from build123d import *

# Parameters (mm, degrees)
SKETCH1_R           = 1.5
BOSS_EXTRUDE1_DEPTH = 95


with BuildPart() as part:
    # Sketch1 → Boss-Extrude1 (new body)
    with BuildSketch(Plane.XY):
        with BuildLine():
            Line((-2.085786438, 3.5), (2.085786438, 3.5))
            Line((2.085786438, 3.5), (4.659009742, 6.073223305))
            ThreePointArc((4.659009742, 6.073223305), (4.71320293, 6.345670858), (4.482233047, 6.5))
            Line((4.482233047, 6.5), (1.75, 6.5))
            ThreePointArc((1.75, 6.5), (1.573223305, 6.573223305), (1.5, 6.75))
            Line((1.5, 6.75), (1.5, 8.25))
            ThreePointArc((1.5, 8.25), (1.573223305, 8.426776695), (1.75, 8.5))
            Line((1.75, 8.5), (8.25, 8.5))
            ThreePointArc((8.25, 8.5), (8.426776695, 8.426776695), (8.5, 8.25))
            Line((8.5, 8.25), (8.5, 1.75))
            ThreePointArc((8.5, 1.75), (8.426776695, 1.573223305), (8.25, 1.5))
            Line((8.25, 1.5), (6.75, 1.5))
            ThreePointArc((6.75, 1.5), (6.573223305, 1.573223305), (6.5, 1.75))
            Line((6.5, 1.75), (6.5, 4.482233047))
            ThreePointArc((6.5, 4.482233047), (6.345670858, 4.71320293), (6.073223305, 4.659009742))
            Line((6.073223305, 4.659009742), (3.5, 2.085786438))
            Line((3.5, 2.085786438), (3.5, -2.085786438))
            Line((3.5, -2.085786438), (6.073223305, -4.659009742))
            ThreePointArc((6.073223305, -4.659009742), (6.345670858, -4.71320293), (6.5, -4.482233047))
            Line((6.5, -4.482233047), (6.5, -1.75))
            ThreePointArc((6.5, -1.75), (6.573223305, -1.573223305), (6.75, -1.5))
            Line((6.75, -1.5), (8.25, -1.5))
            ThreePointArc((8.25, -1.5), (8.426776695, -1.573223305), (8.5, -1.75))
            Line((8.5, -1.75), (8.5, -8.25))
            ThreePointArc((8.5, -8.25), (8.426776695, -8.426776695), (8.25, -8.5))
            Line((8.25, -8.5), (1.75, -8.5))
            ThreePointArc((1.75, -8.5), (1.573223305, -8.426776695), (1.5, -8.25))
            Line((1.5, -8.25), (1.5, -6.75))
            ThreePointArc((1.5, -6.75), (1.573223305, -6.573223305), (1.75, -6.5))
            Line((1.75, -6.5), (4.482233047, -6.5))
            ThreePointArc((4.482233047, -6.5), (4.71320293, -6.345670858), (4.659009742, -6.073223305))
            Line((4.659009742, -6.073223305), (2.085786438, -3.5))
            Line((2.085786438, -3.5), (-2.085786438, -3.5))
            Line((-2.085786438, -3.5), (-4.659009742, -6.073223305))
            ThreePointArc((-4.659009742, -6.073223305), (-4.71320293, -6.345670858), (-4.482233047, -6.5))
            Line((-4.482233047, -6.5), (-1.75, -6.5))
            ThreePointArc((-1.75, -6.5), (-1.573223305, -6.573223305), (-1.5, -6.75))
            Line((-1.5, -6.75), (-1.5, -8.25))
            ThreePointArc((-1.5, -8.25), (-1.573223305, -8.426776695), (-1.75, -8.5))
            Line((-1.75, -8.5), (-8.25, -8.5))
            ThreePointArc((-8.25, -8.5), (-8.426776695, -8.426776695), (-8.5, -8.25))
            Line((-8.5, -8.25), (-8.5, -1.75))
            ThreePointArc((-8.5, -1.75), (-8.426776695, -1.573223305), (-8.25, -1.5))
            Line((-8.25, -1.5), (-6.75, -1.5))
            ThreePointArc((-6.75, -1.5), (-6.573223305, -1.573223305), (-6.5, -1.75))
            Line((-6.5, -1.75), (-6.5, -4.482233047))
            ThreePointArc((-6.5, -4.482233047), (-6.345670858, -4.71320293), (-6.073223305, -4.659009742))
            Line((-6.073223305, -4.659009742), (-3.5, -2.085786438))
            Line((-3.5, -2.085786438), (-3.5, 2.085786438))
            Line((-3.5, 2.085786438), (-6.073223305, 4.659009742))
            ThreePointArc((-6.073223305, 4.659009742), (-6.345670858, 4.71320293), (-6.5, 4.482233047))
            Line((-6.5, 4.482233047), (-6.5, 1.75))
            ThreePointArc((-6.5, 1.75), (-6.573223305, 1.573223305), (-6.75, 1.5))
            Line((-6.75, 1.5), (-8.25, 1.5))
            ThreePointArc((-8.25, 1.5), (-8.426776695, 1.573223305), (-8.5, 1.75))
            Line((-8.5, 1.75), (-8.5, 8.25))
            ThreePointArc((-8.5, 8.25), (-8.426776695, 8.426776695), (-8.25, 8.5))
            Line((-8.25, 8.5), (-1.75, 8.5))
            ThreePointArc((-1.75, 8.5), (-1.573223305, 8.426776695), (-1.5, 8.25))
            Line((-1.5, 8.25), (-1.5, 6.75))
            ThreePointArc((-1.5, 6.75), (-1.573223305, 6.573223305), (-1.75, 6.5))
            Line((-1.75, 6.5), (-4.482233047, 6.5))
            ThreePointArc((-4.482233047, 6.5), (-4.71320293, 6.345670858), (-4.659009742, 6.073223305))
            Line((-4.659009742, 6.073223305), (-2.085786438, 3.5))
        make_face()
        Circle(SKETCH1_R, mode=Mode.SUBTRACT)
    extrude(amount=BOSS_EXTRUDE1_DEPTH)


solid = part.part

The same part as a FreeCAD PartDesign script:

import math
import FreeCAD as App
import Part
import Sketcher

V = App.Vector

doc = App.newDocument("Part")
params = doc.addObject("Spreadsheet::Sheet", "Params")
for row, (alias, value) in enumerate([
    ("sketch1_diameter", "3 mm"),
    ("sketch1_radius", "0.25 mm"),
    ("sketch1_width", "6.5 mm"),
    ("sketch1_width2", "1.5 mm"),
    ("pad1_length", "95 mm"),
], start=1):
    params.set(f"A{row}", alias)
    params.set(f"B{row}", "=" + value)
    params.setAlias(f"B{row}", alias)

body = doc.addObject("PartDesign::Body", "Body")

# Sketch on XY plane
sketch1 = doc.addObject("Sketcher::SketchObject", "Sketch")
body.addObject(sketch1)
sketch1.AttachmentSupport = (doc.XY_Plane, [""])
sketch1.MapMode = "FlatFace"
sketch1.addGeometry([
    Part.LineSegment(V(2.09, 3.5, 0), V(-2.09, 3.5, 0)),  # 0
    Part.LineSegment(V(-2.09, 3.5, 0), V(-4.66, 6.07, 0)),  # 1
    Part.ArcOfCircle(Part.Circle(V(-4.48, 6.25, 0), V(0, 0, 1), 0.25), math.radians(90), math.radians(225)),  # 2
    Part.LineSegment(V(-4.48, 6.5, 0), V(-1.75, 6.5, 0)),  # 3
    Part.ArcOfCircle(Part.Circle(V(-1.75, 6.75, 0), V(0, 0, 1), 0.25), math.radians(-90), math.radians(0)),  # 4
    Part.LineSegment(V(-1.5, 6.75, 0), V(-1.5, 8.25, 0)),  # 5
    Part.ArcOfCircle(Part.Circle(V(-1.75, 8.25, 0), V(0, 0, 1), 0.25), math.radians(0), math.radians(90)),  # 6
    Part.LineSegment(V(-1.75, 8.5, 0), V(-8.25, 8.5, 0)),  # 7
    Part.ArcOfCircle(Part.Circle(V(-8.25, 8.25, 0), V(0, 0, 1), 0.25), math.radians(90), math.radians(180)),  # 8
    Part.LineSegment(V(-8.5, 8.25, 0), V(-8.5, 1.75, 0)),  # 9
    Part.ArcOfCircle(Part.Circle(V(-8.25, 1.75, 0), V(0, 0, 1), 0.25), math.radians(-180), math.radians(-90)),  # 10
    Part.LineSegment(V(-8.25, 1.5, 0), V(-6.75, 1.5, 0)),  # 11
    Part.ArcOfCircle(Part.Circle(V(-6.75, 1.75, 0), V(0, 0, 1), 0.25), math.radians(-90), math.radians(0)),  # 12
    Part.LineSegment(V(-6.5, 1.75, 0), V(-6.5, 4.48, 0)),  # 13
    Part.ArcOfCircle(Part.Circle(V(-6.25, 4.48, 0), V(0, 0, 1), 0.25), math.radians(45), math.radians(180)),  # 14
    Part.LineSegment(V(-6.07, 4.66, 0), V(-3.5, 2.09, 0)),  # 15
    Part.LineSegment(V(-3.5, 2.09, 0), V(-3.5, -2.09, 0)),  # 16
    Part.LineSegment(V(-3.5, -2.09, 0), V(-6.07, -4.66, 0)),  # 17
    Part.ArcOfCircle(Part.Circle(V(-6.25, -4.48, 0), V(0, 0, 1), 0.25), math.radians(180), math.radians(315)),  # 18
    Part.LineSegment(V(-6.5, -4.48, 0), V(-6.5, -1.75, 0)),  # 19
    Part.ArcOfCircle(Part.Circle(V(-6.75, -1.75, 0), V(0, 0, 1), 0.25), math.radians(0), math.radians(90)),  # 20
    Part.LineSegment(V(-6.75, -1.5, 0), V(-8.25, -1.5, 0)),  # 21
    Part.ArcOfCircle(Part.Circle(V(-8.25, -1.75, 0), V(0, 0, 1), 0.25), math.radians(90), math.radians(180)),  # 22
    Part.LineSegment(V(-8.5, -1.75, 0), V(-8.5, -8.25, 0)),  # 23
    Part.ArcOfCircle(Part.Circle(V(-8.25, -8.25, 0), V(0, 0, 1), 0.25), math.radians(-180), math.radians(-90)),  # 24
    Part.LineSegment(V(-8.25, -8.5, 0), V(-1.75, -8.5, 0)),  # 25
    Part.ArcOfCircle(Part.Circle(V(-1.75, -8.25, 0), V(0, 0, 1), 0.25), math.radians(-90), math.radians(0)),  # 26
    Part.LineSegment(V(-1.5, -8.25, 0), V(-1.5, -6.75, 0)),  # 27
    Part.ArcOfCircle(Part.Circle(V(-1.75, -6.75, 0), V(0, 0, 1), 0.25), math.radians(0), math.radians(90)),  # 28
    Part.LineSegment(V(-1.75, -6.5, 0), V(-4.48, -6.5, 0)),  # 29
    Part.ArcOfCircle(Part.Circle(V(-4.48, -6.25, 0), V(0, 0, 1), 0.25), math.radians(135), math.radians(270)),  # 30
    Part.LineSegment(V(-4.66, -6.07, 0), V(-2.09, -3.5, 0)),  # 31
    Part.LineSegment(V(-2.09, -3.5, 0), V(2.09, -3.5, 0)),  # 32
    Part.LineSegment(V(2.09, -3.5, 0), V(4.66, -6.07, 0)),  # 33
    Part.ArcOfCircle(Part.Circle(V(4.48, -6.25, 0), V(0, 0, 1), 0.25), math.radians(-90), math.radians(45)),  # 34
    Part.LineSegment(V(4.48, -6.5, 0), V(1.75, -6.5, 0)),  # 35
    Part.ArcOfCircle(Part.Circle(V(1.75, -6.75, 0), V(0, 0, 1), 0.25), math.radians(90), math.radians(180)),  # 36
    Part.LineSegment(V(1.5, -6.75, 0), V(1.5, -8.25, 0)),  # 37
    Part.ArcOfCircle(Part.Circle(V(1.75, -8.25, 0), V(0, 0, 1), 0.25), math.radians(-180), math.radians(-90)),  # 38
    Part.LineSegment(V(1.75, -8.5, 0), V(8.25, -8.5, 0)),  # 39
    Part.ArcOfCircle(Part.Circle(V(8.25, -8.25, 0), V(0, 0, 1), 0.25), math.radians(-90), math.radians(0)),  # 40
    Part.LineSegment(V(8.5, -8.25, 0), V(8.5, -1.75, 0)),  # 41
    Part.ArcOfCircle(Part.Circle(V(8.25, -1.75, 0), V(0, 0, 1), 0.25), math.radians(0), math.radians(90)),  # 42
    Part.LineSegment(V(8.25, -1.5, 0), V(6.75, -1.5, 0)),  # 43
    Part.ArcOfCircle(Part.Circle(V(6.75, -1.75, 0), V(0, 0, 1), 0.25), math.radians(90), math.radians(180)),  # 44
    Part.LineSegment(V(6.5, -1.75, 0), V(6.5, -4.48, 0)),  # 45
    Part.ArcOfCircle(Part.Circle(V(6.25, -4.48, 0), V(0, 0, 1), 0.25), math.radians(-135), math.radians(0)),  # 46
    Part.LineSegment(V(6.07, -4.66, 0), V(3.5, -2.09, 0)),  # 47
    Part.LineSegment(V(3.5, -2.09, 0), V(3.5, 2.09, 0)),  # 48
    Part.LineSegment(V(3.5, 2.09, 0), V(6.07, 4.66, 0)),  # 49
    Part.ArcOfCircle(Part.Circle(V(6.25, 4.48, 0), V(0, 0, 1), 0.25), math.radians(0), math.radians(135)),  # 50
    Part.LineSegment(V(6.5, 4.48, 0), V(6.5, 1.75, 0)),  # 51
    Part.ArcOfCircle(Part.Circle(V(6.75, 1.75, 0), V(0, 0, 1), 0.25), math.radians(-180), math.radians(-90)),  # 52
    Part.LineSegment(V(6.75, 1.5, 0), V(8.25, 1.5, 0)),  # 53
    Part.ArcOfCircle(Part.Circle(V(8.25, 1.75, 0), V(0, 0, 1), 0.25), math.radians(-90), math.radians(0)),  # 54
    Part.LineSegment(V(8.5, 1.75, 0), V(8.5, 8.25, 0)),  # 55
    Part.ArcOfCircle(Part.Circle(V(8.25, 8.25, 0), V(0, 0, 1), 0.25), math.radians(0), math.radians(90)),  # 56
    Part.LineSegment(V(8.25, 8.5, 0), V(1.75, 8.5, 0)),  # 57
    Part.ArcOfCircle(Part.Circle(V(1.75, 8.25, 0), V(0, 0, 1), 0.25), math.radians(90), math.radians(180)),  # 58
    Part.LineSegment(V(1.5, 8.25, 0), V(1.5, 6.75, 0)),  # 59
    Part.ArcOfCircle(Part.Circle(V(1.75, 6.75, 0), V(0, 0, 1), 0.25), math.radians(-180), math.radians(-90)),  # 60
    Part.LineSegment(V(1.75, 6.5, 0), V(4.48, 6.5, 0)),  # 61
    Part.ArcOfCircle(Part.Circle(V(4.48, 6.25, 0), V(0, 0, 1), 0.25), math.radians(-45), math.radians(90)),  # 62
    Part.LineSegment(V(4.66, 6.07, 0), V(2.09, 3.5, 0)),  # 63
    Part.Circle(V(0, 0, 0), V(0, 0, 1), 1.5),  # 64
], False)
sketch1.addConstraint([
    Sketcher.Constraint("Coincident", 0, 2, 1, 1),
    Sketcher.Constraint("Tangent", 1, 2, 2, 2),
    Sketcher.Constraint("Tangent", 2, 1, 3, 1),
    Sketcher.Constraint("Tangent", 3, 2, 4, 1),
    Sketcher.Constraint("Tangent", 4, 2, 5, 1),
    Sketcher.Constraint("Tangent", 5, 2, 6, 1),
    Sketcher.Constraint("Tangent", 6, 2, 7, 1),
    Sketcher.Constraint("Tangent", 7, 2, 8, 1),
    Sketcher.Constraint("Tangent", 8, 2, 9, 1),
    Sketcher.Constraint("Tangent", 9, 2, 10, 1),
    Sketcher.Constraint("Tangent", 10, 2, 11, 1),
    Sketcher.Constraint("Tangent", 11, 2, 12, 1),
    Sketcher.Constraint("Tangent", 12, 2, 13, 1),
    Sketcher.Constraint("Tangent", 13, 2, 14, 2),
    Sketcher.Constraint("Tangent", 14, 1, 15, 1),
    Sketcher.Constraint("Coincident", 15, 2, 16, 1),
    Sketcher.Constraint("Coincident", 16, 2, 17, 1),
    Sketcher.Constraint("Tangent", 17, 2, 18, 2),
    Sketcher.Constraint("Tangent", 18, 1, 19, 1),
    Sketcher.Constraint("Tangent", 19, 2, 20, 1),
    Sketcher.Constraint("Tangent", 20, 2, 21, 1),
    Sketcher.Constraint("Tangent", 21, 2, 22, 1),
    Sketcher.Constraint("Tangent", 22, 2, 23, 1),
    Sketcher.Constraint("Tangent", 23, 2, 24, 1),
    Sketcher.Constraint("Tangent", 24, 2, 25, 1),
    Sketcher.Constraint("Tangent", 25, 2, 26, 1),
    Sketcher.Constraint("Tangent", 26, 2, 27, 1),
    Sketcher.Constraint("Tangent", 27, 2, 28, 1),
    Sketcher.Constraint("Tangent", 28, 2, 29, 1),
    Sketcher.Constraint("Tangent", 29, 2, 30, 2),
    Sketcher.Constraint("Tangent", 30, 1, 31, 1),
    Sketcher.Constraint("Coincident", 31, 2, 32, 1),
    Sketcher.Constraint("Coincident", 32, 2, 33, 1),
    Sketcher.Constraint("Tangent", 33, 2, 34, 2),
    Sketcher.Constraint("Tangent", 34, 1, 35, 1),
    Sketcher.Constraint("Tangent", 35, 2, 36, 1),
    Sketcher.Constraint("Tangent", 36, 2, 37, 1),
    Sketcher.Constraint("Tangent", 37, 2, 38, 1),
    Sketcher.Constraint("Tangent", 38, 2, 39, 1),
    Sketcher.Constraint("Tangent", 39, 2, 40, 1),
    Sketcher.Constraint("Tangent", 40, 2, 41, 1),
    Sketcher.Constraint("Tangent", 41, 2, 42, 1),
    Sketcher.Constraint("Tangent", 42, 2, 43, 1),
    Sketcher.Constraint("Tangent", 43, 2, 44, 1),
    Sketcher.Constraint("Tangent", 44, 2, 45, 1),
    Sketcher.Constraint("Tangent", 45, 2, 46, 2),
    Sketcher.Constraint("Tangent", 46, 1, 47, 1),
    Sketcher.Constraint("Coincident", 47, 2, 48, 1),
    Sketcher.Constraint("Coincident", 48, 2, 49, 1),
    Sketcher.Constraint("Tangent", 49, 2, 50, 2),
    Sketcher.Constraint("Tangent", 50, 1, 51, 1),
    Sketcher.Constraint("Tangent", 51, 2, 52, 1),
    Sketcher.Constraint("Tangent", 52, 2, 53, 1),
    Sketcher.Constraint("Tangent", 53, 2, 54, 1),
    Sketcher.Constraint("Tangent", 54, 2, 55, 1),
    Sketcher.Constraint("Tangent", 55, 2, 56, 1),
    Sketcher.Constraint("Tangent", 56, 2, 57, 1),
    Sketcher.Constraint("Tangent", 57, 2, 58, 1),
    Sketcher.Constraint("Tangent", 58, 2, 59, 1),
    Sketcher.Constraint("Tangent", 59, 2, 60, 1),
    Sketcher.Constraint("Tangent", 60, 2, 61, 1),
    Sketcher.Constraint("Tangent", 61, 2, 62, 2),
    Sketcher.Constraint("Tangent", 62, 1, 63, 1),
    Sketcher.Constraint("Coincident", 63, 2, 0, 1),
    Sketcher.Constraint("Horizontal", 0),
    Sketcher.Constraint("Horizontal", 3),
    Sketcher.Constraint("Vertical", 5),
    Sketcher.Constraint("Horizontal", 7),
    Sketcher.Constraint("Vertical", 9),
    Sketcher.Constraint("Horizontal", 11),
    Sketcher.Constraint("Vertical", 13),
    Sketcher.Constraint("Vertical", 16),
    Sketcher.Constraint("Vertical", 19),
    Sketcher.Constraint("Horizontal", 21),
    Sketcher.Constraint("Vertical", 23),
    Sketcher.Constraint("Horizontal", 25),
    Sketcher.Constraint("Vertical", 27),
    Sketcher.Constraint("Horizontal", 29),
    Sketcher.Constraint("Horizontal", 32),
    Sketcher.Constraint("Horizontal", 35),
    Sketcher.Constraint("Vertical", 37),
    Sketcher.Constraint("Horizontal", 39),
    Sketcher.Constraint("Vertical", 41),
    Sketcher.Constraint("Horizontal", 43),
    Sketcher.Constraint("Vertical", 45),
    Sketcher.Constraint("Vertical", 48),
    Sketcher.Constraint("Vertical", 51),
    Sketcher.Constraint("Horizontal", 53),
    Sketcher.Constraint("Vertical", 55),
    Sketcher.Constraint("Horizontal", 57),
    Sketcher.Constraint("Vertical", 59),
    Sketcher.Constraint("Horizontal", 61),
    Sketcher.Constraint("Coincident", 64, 3, -1, 1),
    Sketcher.Constraint("Equal", 2, 4),
    Sketcher.Constraint("Equal", 4, 6),
    Sketcher.Constraint("Equal", 6, 8),
    Sketcher.Constraint("Equal", 8, 10),
    Sketcher.Constraint("Equal", 10, 12),
    Sketcher.Constraint("Equal", 12, 14),
    Sketcher.Constraint("Equal", 14, 18),
    Sketcher.Constraint("Equal", 18, 20),
    Sketcher.Constraint("Equal", 20, 22),
    Sketcher.Constraint("Equal", 22, 24),
    Sketcher.Constraint("Equal", 24, 26),
    Sketcher.Constraint("Equal", 26, 28),
    Sketcher.Constraint("Equal", 28, 30),
    Sketcher.Constraint("Equal", 30, 34),
    Sketcher.Constraint("Equal", 34, 36),
    Sketcher.Constraint("Equal", 36, 38),
    Sketcher.Constraint("Equal", 38, 40),
    Sketcher.Constraint("Equal", 40, 42),
    Sketcher.Constraint("Equal", 42, 44),
    Sketcher.Constraint("Equal", 44, 46),
    Sketcher.Constraint("Equal", 46, 50),
    Sketcher.Constraint("Equal", 50, 52),
    Sketcher.Constraint("Equal", 52, 54),
    Sketcher.Constraint("Equal", 54, 56),
    Sketcher.Constraint("Equal", 56, 58),
    Sketcher.Constraint("Equal", 58, 60),
    Sketcher.Constraint("Equal", 60, 62),
    Sketcher.Constraint("Symmetric", 2, 3, 34, 3, -1, 1),
    Sketcher.Constraint("Symmetric", 6, 3, 38, 3, -1, 1),
    Sketcher.Constraint("Symmetric", 10, 3, 42, 3, -1, 1),
    Sketcher.Constraint("Symmetric", 14, 3, 46, 3, -1, 1),
    Sketcher.Constraint("Symmetric", 18, 3, 50, 3, -1, 1),
    Sketcher.Constraint("Symmetric", 22, 3, 54, 3, -1, 1),
    Sketcher.Constraint("Symmetric", 26, 3, 58, 3, -1, 1),
    Sketcher.Constraint("Symmetric", 30, 3, 62, 3, -1, 1),
    Sketcher.Constraint("Symmetric", 0, 2, 32, 2, -1, 1),
    Sketcher.Constraint("Symmetric", 15, 2, 47, 2, -1, 1),
    Sketcher.Constraint("Symmetric", 30, 3, 34, 3, -2),
    Sketcher.Constraint("Symmetric", 26, 3, 38, 3, -2),
    Sketcher.Constraint("Symmetric", 22, 3, 42, 3, -2),
    Sketcher.Constraint("Symmetric", 18, 3, 46, 3, -2),
    Sketcher.Constraint("Parallel", 1, 15),
    Sketcher.Constraint("Perpendicular", 15, 17),
    Sketcher.Constraint("Parallel", 17, 31),
    Sketcher.Constraint("Perpendicular", 47, 49),
    Sketcher.Constraint("Parallel", 49, 63),
    Sketcher.Constraint("Horizontal", 30, 1, 33, 2),
    Sketcher.Constraint("Equal", 53, 5),
    Sketcher.Constraint("Equal", 57, 9),
    Sketcher.Constraint("Equal", 61, 13),
    Sketcher.Constraint("Equal", 32, 16),
    Sketcher.Constraint("Equal", 1, 15),
    Sketcher.Constraint("Diameter", 64, 3.0),
    Sketcher.Constraint("Radius", 2, 0.25),
    Sketcher.Constraint("DistanceX", 7, 2, 7, 1, 6.5),
    Sketcher.Constraint("DistanceX", 11, 1, 11, 2, 1.5),
    Sketcher.Constraint("DistanceY", -1, 1, 0, 2, 3.5),
    Sketcher.Constraint("DistanceY", -1, 1, 2, 1, 6.5),
    Sketcher.Constraint("DistanceX", 0, 2, 0, 1, 4.171573),
])
sketch1.setExpression("Constraints[145]", "Params.sketch1_diameter")
sketch1.setExpression("Constraints[146]", "Params.sketch1_radius")
sketch1.setExpression("Constraints[147]", "Params.sketch1_width")
sketch1.setExpression("Constraints[148]", "Params.sketch1_width2")
pad1 = doc.addObject("PartDesign::Pad", "Pad")
body.addObject(pad1)
pad1.Profile = sketch1
pad1.setExpression("Length", "Params.pad1_length")

doc.recompute()
